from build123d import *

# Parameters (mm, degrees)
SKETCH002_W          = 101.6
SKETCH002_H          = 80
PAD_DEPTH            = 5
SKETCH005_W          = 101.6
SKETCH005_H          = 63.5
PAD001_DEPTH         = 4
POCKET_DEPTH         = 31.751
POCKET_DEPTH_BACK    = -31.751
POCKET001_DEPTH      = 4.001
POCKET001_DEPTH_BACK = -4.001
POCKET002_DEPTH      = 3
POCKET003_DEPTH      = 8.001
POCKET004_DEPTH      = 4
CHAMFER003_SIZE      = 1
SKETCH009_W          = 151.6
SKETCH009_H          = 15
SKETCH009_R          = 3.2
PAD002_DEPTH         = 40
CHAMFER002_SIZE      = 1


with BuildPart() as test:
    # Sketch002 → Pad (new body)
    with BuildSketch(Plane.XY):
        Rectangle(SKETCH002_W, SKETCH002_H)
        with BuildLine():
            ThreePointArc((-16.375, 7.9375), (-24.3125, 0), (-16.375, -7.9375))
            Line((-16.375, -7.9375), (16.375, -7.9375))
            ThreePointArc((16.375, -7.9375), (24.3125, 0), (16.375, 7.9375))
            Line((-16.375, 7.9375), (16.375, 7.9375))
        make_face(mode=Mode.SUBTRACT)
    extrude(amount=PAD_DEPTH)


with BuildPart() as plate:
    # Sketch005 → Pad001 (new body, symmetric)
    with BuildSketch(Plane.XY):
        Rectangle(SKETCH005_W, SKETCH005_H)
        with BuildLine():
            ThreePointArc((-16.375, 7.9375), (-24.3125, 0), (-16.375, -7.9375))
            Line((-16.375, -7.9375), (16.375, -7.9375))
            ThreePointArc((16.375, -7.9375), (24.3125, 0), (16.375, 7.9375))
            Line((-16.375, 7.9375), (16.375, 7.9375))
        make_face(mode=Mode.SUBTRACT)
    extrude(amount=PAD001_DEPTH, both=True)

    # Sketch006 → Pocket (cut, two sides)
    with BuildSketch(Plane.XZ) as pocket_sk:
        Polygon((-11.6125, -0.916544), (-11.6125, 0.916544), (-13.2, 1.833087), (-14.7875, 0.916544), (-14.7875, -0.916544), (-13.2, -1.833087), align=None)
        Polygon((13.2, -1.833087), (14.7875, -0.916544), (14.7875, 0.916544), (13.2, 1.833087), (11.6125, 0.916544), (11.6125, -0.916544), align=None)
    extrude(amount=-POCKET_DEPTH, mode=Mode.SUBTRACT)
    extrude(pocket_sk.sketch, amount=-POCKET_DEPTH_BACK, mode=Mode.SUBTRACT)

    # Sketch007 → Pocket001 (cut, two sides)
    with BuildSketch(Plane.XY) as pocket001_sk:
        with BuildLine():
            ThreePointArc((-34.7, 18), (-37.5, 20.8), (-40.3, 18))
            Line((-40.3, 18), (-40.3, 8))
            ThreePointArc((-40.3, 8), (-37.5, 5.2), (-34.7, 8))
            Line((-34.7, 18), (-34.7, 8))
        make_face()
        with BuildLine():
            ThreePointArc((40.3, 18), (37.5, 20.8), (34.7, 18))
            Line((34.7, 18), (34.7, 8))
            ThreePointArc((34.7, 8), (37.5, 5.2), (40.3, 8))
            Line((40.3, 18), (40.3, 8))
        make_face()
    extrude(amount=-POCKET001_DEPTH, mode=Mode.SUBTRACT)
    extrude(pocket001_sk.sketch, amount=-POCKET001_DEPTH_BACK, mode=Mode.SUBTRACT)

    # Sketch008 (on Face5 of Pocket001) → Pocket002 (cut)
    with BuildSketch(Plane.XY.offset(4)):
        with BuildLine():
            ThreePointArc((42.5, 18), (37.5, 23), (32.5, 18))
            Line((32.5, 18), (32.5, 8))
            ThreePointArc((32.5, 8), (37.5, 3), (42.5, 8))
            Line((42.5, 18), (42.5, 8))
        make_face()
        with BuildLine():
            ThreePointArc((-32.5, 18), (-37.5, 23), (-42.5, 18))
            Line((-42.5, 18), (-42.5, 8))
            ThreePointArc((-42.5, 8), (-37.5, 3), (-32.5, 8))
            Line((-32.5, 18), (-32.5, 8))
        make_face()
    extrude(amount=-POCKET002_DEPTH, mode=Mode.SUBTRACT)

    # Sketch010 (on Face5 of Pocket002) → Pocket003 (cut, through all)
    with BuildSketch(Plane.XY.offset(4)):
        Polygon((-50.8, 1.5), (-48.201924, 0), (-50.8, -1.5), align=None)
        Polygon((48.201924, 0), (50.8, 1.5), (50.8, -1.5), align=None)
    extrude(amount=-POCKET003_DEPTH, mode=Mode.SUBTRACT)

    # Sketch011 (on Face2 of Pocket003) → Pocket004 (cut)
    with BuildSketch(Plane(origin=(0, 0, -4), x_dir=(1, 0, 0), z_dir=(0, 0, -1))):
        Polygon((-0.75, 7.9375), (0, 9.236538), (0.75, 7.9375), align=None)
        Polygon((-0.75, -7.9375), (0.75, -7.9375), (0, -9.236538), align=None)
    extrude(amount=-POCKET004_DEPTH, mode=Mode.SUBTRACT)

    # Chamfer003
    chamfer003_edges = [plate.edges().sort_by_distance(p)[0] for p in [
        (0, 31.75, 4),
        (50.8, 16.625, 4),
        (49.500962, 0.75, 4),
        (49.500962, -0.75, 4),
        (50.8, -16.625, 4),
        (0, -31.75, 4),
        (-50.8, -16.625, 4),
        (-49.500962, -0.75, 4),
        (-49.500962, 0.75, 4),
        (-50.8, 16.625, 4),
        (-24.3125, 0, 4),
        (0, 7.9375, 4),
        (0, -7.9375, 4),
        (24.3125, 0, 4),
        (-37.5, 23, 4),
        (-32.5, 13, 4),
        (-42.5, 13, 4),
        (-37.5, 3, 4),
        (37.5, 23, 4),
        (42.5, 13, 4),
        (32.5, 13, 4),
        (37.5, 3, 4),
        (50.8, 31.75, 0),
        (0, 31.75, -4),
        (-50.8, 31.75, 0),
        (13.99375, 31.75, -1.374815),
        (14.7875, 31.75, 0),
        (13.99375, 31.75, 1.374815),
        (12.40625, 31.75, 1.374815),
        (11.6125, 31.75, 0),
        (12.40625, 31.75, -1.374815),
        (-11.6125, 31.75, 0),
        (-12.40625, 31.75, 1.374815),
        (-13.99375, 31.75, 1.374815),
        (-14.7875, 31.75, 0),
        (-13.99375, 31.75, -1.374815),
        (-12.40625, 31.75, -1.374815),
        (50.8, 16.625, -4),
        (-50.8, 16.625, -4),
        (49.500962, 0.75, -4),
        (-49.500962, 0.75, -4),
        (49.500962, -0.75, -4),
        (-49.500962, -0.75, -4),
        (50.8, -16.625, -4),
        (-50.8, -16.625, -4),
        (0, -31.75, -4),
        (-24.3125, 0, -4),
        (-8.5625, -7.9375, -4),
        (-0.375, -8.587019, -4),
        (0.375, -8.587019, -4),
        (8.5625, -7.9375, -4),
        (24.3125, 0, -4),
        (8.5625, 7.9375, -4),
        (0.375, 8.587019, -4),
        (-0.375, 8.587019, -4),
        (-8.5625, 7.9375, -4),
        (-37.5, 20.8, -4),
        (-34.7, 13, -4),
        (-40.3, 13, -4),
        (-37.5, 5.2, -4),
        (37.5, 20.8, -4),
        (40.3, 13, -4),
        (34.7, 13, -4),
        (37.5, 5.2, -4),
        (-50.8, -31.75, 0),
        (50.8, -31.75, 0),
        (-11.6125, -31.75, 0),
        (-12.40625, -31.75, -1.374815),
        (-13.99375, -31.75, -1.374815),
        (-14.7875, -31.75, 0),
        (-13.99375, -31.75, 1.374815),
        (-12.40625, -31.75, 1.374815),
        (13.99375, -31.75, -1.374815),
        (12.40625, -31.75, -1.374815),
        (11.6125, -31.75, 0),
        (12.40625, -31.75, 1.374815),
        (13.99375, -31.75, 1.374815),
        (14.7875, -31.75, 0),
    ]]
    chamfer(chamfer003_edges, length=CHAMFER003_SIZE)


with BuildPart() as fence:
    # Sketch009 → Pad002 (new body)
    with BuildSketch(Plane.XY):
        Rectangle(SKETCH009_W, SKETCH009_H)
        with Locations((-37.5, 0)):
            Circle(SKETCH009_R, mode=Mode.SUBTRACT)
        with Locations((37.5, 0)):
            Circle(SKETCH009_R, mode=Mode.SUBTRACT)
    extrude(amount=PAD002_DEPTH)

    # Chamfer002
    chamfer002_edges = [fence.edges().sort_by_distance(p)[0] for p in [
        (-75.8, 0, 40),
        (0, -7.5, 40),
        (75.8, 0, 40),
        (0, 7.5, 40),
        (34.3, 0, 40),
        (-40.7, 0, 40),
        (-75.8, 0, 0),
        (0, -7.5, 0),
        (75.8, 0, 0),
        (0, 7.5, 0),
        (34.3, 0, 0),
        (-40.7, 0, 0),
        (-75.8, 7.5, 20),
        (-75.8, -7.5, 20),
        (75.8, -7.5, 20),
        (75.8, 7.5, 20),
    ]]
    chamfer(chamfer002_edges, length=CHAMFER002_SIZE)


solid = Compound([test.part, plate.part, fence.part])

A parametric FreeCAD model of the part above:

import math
import FreeCAD as App
import Part
import Sketcher
Q = App.Units.Quantity


def edges_at(feature, points):
    """Names of the edges that pass closest to the given points."""
    edges = feature.Shape.Edges
    near = lambda p: min(range(len(edges)), key=lambda i: edges[i].distToShape(Part.Vertex(*p))[0])
    return sorted({f"Edge{near(p) + 1}" for p in points})

doc = App.newDocument("Part")
body = doc.addObject("PartDesign::Body", "Body")

# Sketch on XY plane
sketch1 = body.newObject("Sketcher::SketchObject", "Sketch")
sketch1.AttachmentSupport = (doc.getObject("XY_Plane"), [""])
sketch1.MapMode = "FlatFace"
sketch1.addGeometry(Part.LineSegment(App.Vector(-50.8, 40, 0), App.Vector(-50.8, -40, 0)), False)
sketch1.addGeometry(Part.LineSegment(App.Vector(-50.8, -40, 0), App.Vector(50.8, -40, 0)), False)
sketch1.addGeometry(Part.LineSegment(App.Vector(50.8, -40, 0), App.Vector(50.8, 40, 0)), False)
sketch1.addGeometry(Part.LineSegment(App.Vector(50.8, 40, 0), App.Vector(-50.8, 40, 0)), False)
sketch1.addGeometry(Part.ArcOfCircle(Part.Circle(App.Vector(-16.375, 0, 0), App.Vector(0, 0, 1), 7.9375), math.radians(90), math.radians(270)), False)
sketch1.addGeometry(Part.LineSegment(App.Vector(-16.375, 7.9375, 0), App.Vector(16.375, 7.9375, 0)), False)
sketch1.addGeometry(Part.ArcOfCircle(Part.Circle(App.Vector(16.375, 0, 0), App.Vector(0, 0, 1), 7.9375), math.radians(-90), math.radians(90)), False)
sketch1.addGeometry(Part.LineSegment(App.Vector(16.375, -7.9375, 0), App.Vector(-16.375, -7.9375, 0)), False)
sketch1.addConstraint(Sketcher.Constraint("Coincident", 0, 2, 1, 1))
sketch1.addConstraint(Sketcher.Constraint("Coincident", 1, 2, 2, 1))
sketch1.addConstraint(Sketcher.Constraint("Coincident", 2, 2, 3, 1))
sketch1.addConstraint(Sketcher.Constraint("Coincident", 3, 2, 0, 1))
sketch1.addConstraint(Sketcher.Constraint("Tangent", 4, 1, 5, 1))
sketch1.addConstraint(Sketcher.Constraint("Tangent", 5, 2, 6, 2))
sketch1.addConstraint(Sketcher.Constraint("Tangent", 6, 1, 7, 1))
sketch1.addConstraint(Sketcher.Constraint("Tangent", 7, 2, 4, 2))
sketch1.addConstraint(Sketcher.Constraint("Vertical", 0))
sketch1.addConstraint(Sketcher.Constraint("Horizontal", 1))
sketch1.addConstraint(Sketcher.Constraint("Vertical", 2))
sketch1.addConstraint(Sketcher.Constraint("Horizontal", 3))
sketch1.addConstraint(Sketcher.Constraint("Horizontal", 5))
sketch1.addConstraint(Sketcher.Constraint("Horizontal", 7))
sketch1.addConstraint(Sketcher.Constraint("Symmetric", 4, 3, 6, 3, -1, 1))
sketch1.addConstraint(Sketcher.Constraint("Symmetric", 0, 2, 2, 2, -1, 1))
sketch1.addConstraint(Sketcher.Constraint("DistanceY", 0, 2, 0, 1, Q("80 mm")))
sketch1.addConstraint(Sketcher.Constraint("DistanceX", 1, 1, 1, 2, Q("101.6 mm")))
sketch1.addConstraint(Sketcher.Constraint("DistanceX", 5, 1, 5, 2, Q("32.75 mm")))
sketch1.addConstraint(Sketcher.Constraint("Radius", 4, Q("7.9375 mm")))
pad1 = body.newObject("PartDesign::Pad", "Pad")
pad1.Profile = sketch1
pad1.Length = 5
body2 = doc.addObject("PartDesign::Body", "Body001")

# Sketch on XY plane
sketch2 = body2.newObject("Sketcher::SketchObject", "Sketch001")
sketch2.AttachmentSupport = (doc.getObject("XY_Plane001"), [""])
sketch2.MapMode = "FlatFace"
sketch2.addGeometry(Part.LineSegment(App.Vector(-50.8, 31.75, 0), App.Vector(-50.8, -31.75, 0)), False)
sketch2.addGeometry(Part.LineSegment(App.Vector(-50.8, -31.75, 0), App.Vector(50.8, -31.75, 0)), False)
sketch2.addGeometry(Part.LineSegment(App.Vector(50.8, -31.75, 0), App.Vector(50.8, 31.75, 0)), False)
sketch2.addGeometry(Part.LineSegment(App.Vector(50.8, 31.75, 0), App.Vector(-50.8, 31.75, 0)), False)
sketch2.addGeometry(Part.ArcOfCircle(Part.Circle(App.Vector(-16.375, 0, 0), App.Vector(0, 0, 1), 7.9375), math.radians(90), math.radians(270)), False)
sketch2.addGeometry(Part.LineSegment(App.Vector(-16.375, 7.9375, 0), App.Vector(16.375, 7.9375, 0)), False)
sketch2.addGeometry(Part.ArcOfCircle(Part.Circle(App.Vector(16.375, 0, 0), App.Vector(0, 0, 1), 7.9375), math.radians(-90), math.radians(90)), False)
sketch2.addGeometry(Part.LineSegment(App.Vector(16.375, -7.9375, 0), App.Vector(-16.375, -7.9375, 0)), False)
sketch2.addConstraint(Sketcher.Constraint("Coincident", 0, 2, 1, 1))
sketch2.addConstraint(Sketcher.Constraint("Coincident", 1, 2, 2, 1))
sketch2.addConstraint(Sketcher.Constraint("Coincident", 2, 2, 3, 1))
sketch2.addConstraint(Sketcher.Constraint("Coincident", 3, 2, 0, 1))
sketch2.addConstraint(Sketcher.Constraint("Tangent", 4, 1, 5, 1))
sketch2.addConstraint(Sketcher.Constraint("Tangent", 5, 2, 6, 2))
sketch2.addConstraint(Sketcher.Constraint("Tangent", 6, 1, 7, 1))
sketch2.addConstraint(Sketcher.Constraint("Tangent", 7, 2, 4, 2))
sketch2.addConstraint(Sketcher.Constraint("Vertical", 0))
sketch2.addConstraint(Sketcher.Constraint("Horizontal", 1))
sketch2.addConstraint(Sketcher.Constraint("Vertical", 2))
sketch2.addConstraint(Sketcher.Constraint("Horizontal", 3))
sketch2.addConstraint(Sketcher.Constraint("Horizontal", 5))
sketch2.addConstraint(Sketcher.Constraint("Horizontal", 7))
sketch2.addConstraint(Sketcher.Constraint("Symmetric", 4, 3, 6, 3, -1, 1))
sketch2.addConstraint(Sketcher.Constraint("Symmetric", 0, 2, 2, 2, -1, 1))
sketch2.addConstraint(Sketcher.Constraint("DistanceX", 1, 1, 1, 2, Q("101.6 mm")))
sketch2.addConstraint(Sketcher.Constraint("DistanceY", 0, 2, 0, 1, Q("63.5 mm")))
sketch2.addConstraint(Sketcher.Constraint("DistanceX", 5, 1, 5, 2, Q("32.75 mm")))
sketch2.addConstraint(Sketcher.Constraint("Radius", 4, Q("7.9375 mm")))
pad2 = body2.newObject("PartDesign::Pad", "Pad001")
pad2.Profile = sketch2
pad2.Length = 8
pad2.Midplane = True

# Sketch on XZ plane
sketch3 = body2.newObject("Sketcher::SketchObject", "Sketch002")
sketch3.AttachmentSupport = (doc.getObject("XZ_Plane001"), [""])
sketch3.MapMode = "FlatFace"
sketch3.addGeometry(Part.LineSegment(App.Vector(-11.6125, -0.916544, 0), App.Vector(-11.6125, 0.916544, 0)), False)
sketch3.addGeometry(Part.LineSegment(App.Vector(-11.6125, 0.916544, 0), App.Vector(-13.2, 1.833087, 0)), False)
sketch3.addGeometry(Part.LineSegment(App.Vector(-13.2, 1.833087, 0), App.Vector(-14.7875, 0.916544, 0)), False)
sketch3.addGeometry(Part.LineSegment(App.Vector(-14.7875, 0.916544, 0), App.Vector(-14.7875, -0.916544, 0)), False)
sketch3.addGeometry(Part.LineSegment(App.Vector(-14.7875, -0.916544, 0), App.Vector(-13.2, -1.833087, 0)), False)
sketch3.addGeometry(Part.LineSegment(App.Vector(-13.2, -1.833087, 0), App.Vector(-11.6125, -0.916544, 0)), False)
sketch3.addGeometry(Part.LineSegment(App.Vector(13.2, -1.833087, 0), App.Vector(14.7875, -0.916544, 0)), False)
sketch3.addGeometry(Part.LineSegment(App.Vector(14.7875, -0.916544, 0), App.Vector(14.7875, 0.916544, 0)), False)
sketch3.addGeometry(Part.LineSegment(App.Vector(14.7875, 0.916544, 0), App.Vector(13.2, 1.833087, 0)), False)
sketch3.addGeometry(Part.LineSegment(App.Vector(13.2, 1.833087, 0), App.Vector(11.6125, 0.916544, 0)), False)
sketch3.addGeometry(Part.LineSegment(App.Vector(11.6125, 0.916544, 0), App.Vector(11.6125, -0.916544, 0)), False)
sketch3.addGeometry(Part.LineSegment(App.Vector(11.6125, -0.916544, 0), App.Vector(13.2, -1.833087, 0)), False)
sketch3.addConstraint(Sketcher.Constraint("Coincident", 0, 2, 1, 1))
sketch3.addConstraint(Sketcher.Constraint("Coincident", 1, 2, 2, 1))
sketch3.addConstraint(Sketcher.Constraint("Coincident", 2, 2, 3, 1))
sketch3.addConstraint(Sketcher.Constraint("Coincident", 3, 2, 4, 1))
sketch3.addConstraint(Sketcher.Constraint("Coincident", 4, 2, 5, 1))
sketch3.addConstraint(Sketcher.Constraint("Coincident", 5, 2, 0, 1))
sketch3.addConstraint(Sketcher.Constraint("Coincident", 6, 2, 7, 1))
sketch3.addConstraint(Sketcher.Constraint("Coincident", 7, 2, 8, 1))
sketch3.addConstraint(Sketcher.Constraint("Coincident", 8, 2, 9, 1))
sketch3.addConstraint(Sketcher.Constraint("Coincident", 9, 2, 10, 1))
sketch3.addConstraint(Sketcher.Constraint("Coincident", 10, 2, 11, 1))
sketch3.addConstraint(Sketcher.Constraint("Coincident", 11, 2, 6, 1))
sketch3.addConstraint(Sketcher.Constraint("Vertical", 0))
sketch3.addConstraint(Sketcher.Constraint("Vertical", 3))
sketch3.addConstraint(Sketcher.Constraint("Vertical", 7))
sketch3.addConstraint(Sketcher.Constraint("Vertical", 10))
sketch3.addConstraint(Sketcher.Constraint("Symmetric", 2, 2, 6, 2, -1, 1))
sketch3.addConstraint(Sketcher.Constraint("Symmetric", 4, 2, 8, 2, -1, 1))
sketch3.addConstraint(Sketcher.Constraint("Symmetric", 5, 2, 9, 2, -1, 1))
sketch3.addConstraint(Sketcher.Constraint("Symmetric", 1, 2, 11, 2, -1, 1))
sketch3.addConstraint(Sketcher.Constraint("Symmetric", 1, 2, 8, 2, -2))
sketch3.addConstraint(Sketcher.Constraint("Parallel", 1, 4))
sketch3.addConstraint(Sketcher.Constraint("Parallel", 2, 5))
sketch3.addConstraint(Sketcher.Constraint("Parallel", 4, 8))
sketch3.addConstraint(Sketcher.Constraint("Parallel", 8, 11))
sketch3.addConstraint(Sketcher.Constraint("Horizontal", 0, 2, 2, 2))
sketch3.addConstraint(Sketcher.Constraint("Horizontal", 3, 2, 5, 2))
sketch3.addConstraint(Sketcher.Constraint("Angle", 1, Q("150.000015 deg")))
sketch3.addConstraint(Sketcher.Constraint("DistanceX", 1, 2, -1, 1, Q("13.2 mm")))
sketch3.addConstraint(Sketcher.Constraint("DistanceX", 2, 2, 0, 2, Q("3.175 mm")))
sketch3.addConstraint(Sketcher.Constraint("DistanceY", 0, 1, 0, 2, Q("1.833088 mm")))
pocket1 = body2.newObject("PartDesign::Pocket", "Pocket")
pocket1.Profile = sketch3
pocket1.Type = "ThroughAll"
pocket1.Midplane = True

# Sketch on XY plane
sketch4 = body2.newObject("Sketcher::SketchObject", "Sketch003")
sketch4.AttachmentSupport = (doc.getObject("XY_Plane001"), [""])
sketch4.MapMode = "FlatFace"
sketch4.addGeometry(Part.ArcOfCircle(Part.Circle(App.Vector(-37.5, 18, 0), App.Vector(0, 0, 1), 2.8), math.radians(0), math.radians(180)), False)
sketch4.addGeometry(Part.LineSegment(App.Vector(-40.3, 18, 0), App.Vector(-40.3, 8, 0)), False)
sketch4.addGeometry(Part.ArcOfCircle(Part.Circle(App.Vector(-37.5, 8, 0), App.Vector(0, 0, 1), 2.8), math.radians(180), math.radians(360)), False)
sketch4.addGeometry(Part.LineSegment(App.Vector(-34.7, 8, 0), App.Vector(-34.7, 18, 0)), False)
sketch4.addGeometry(Part.ArcOfCircle(Part.Circle(App.Vector(37.5, 18, 0), App.Vector(0, 0, 1), 2.8), math.radians(0), math.radians(180)), False)
sketch4.addGeometry(Part.LineSegment(App.Vector(34.7, 18, 0), App.Vector(34.7, 8, 0)), False)
sketch4.addGeometry(Part.ArcOfCircle(Part.Circle(App.Vector(37.5, 8, 0), App.Vector(0, 0, 1), 2.8), math.radians(180), math.radians(360)), False)
sketch4.addGeometry(Part.LineSegment(App.Vector(40.3, 8, 0), App.Vector(40.3, 18, 0)), False)
sketch4.addConstraint(Sketcher.Constraint("Tangent", 0, 2, 1, 1))
sketch4.addConstraint(Sketcher.Constraint("Tangent", 1, 2, 2, 1))
sketch4.addConstraint(Sketcher.Constraint("Tangent", 2, 2, 3, 1))
sketch4.addConstraint(Sketcher.Constraint("Tangent", 3, 2, 0, 1))
sketch4.addConstraint(Sketcher.Constraint("Tangent", 4, 2, 5, 1))
sketch4.addConstraint(Sketcher.Constraint("Tangent", 5, 2, 6, 1))
sketch4.addConstraint(Sketcher.Constraint("Tangent", 6, 2, 7, 1))
sketch4.addConstraint(Sketcher.Constraint("Tangent", 7, 2, 4, 1))
sketch4.addConstraint(Sketcher.Constraint("Vertical", 1))
sketch4.addConstraint(Sketcher.Constraint("Vertical", 3))
sketch4.addConstraint(Sketcher.Constraint("Vertical", 5))
sketch4.addConstraint(Sketcher.Constraint("Vertical", 7))
sketch4.addConstraint(Sketcher.Constraint("Equal", 2, 4))
sketch4.addConstraint(Sketcher.Constraint("Symmetric", 0, 3, 4, 3, -2))
sketch4.addConstraint(Sketcher.Constraint("Horizontal", 2, 3, 6, 3))
sketch4.addConstraint(Sketcher.Constraint("Radius", 0, Q("2.8 mm")))
sketch4.addConstraint(Sketcher.Constraint("DistanceY", 1, 2, 1, 1, Q("10 mm")))
sketch4.addConstraint(Sketcher.Constraint("DistanceY", -1, 1, 0, 3, Q("18 mm")))
sketch4.addConstraint(Sketcher.Constraint("DistanceX", 0, 3, 4, 3, Q("75 mm")))
pocket2 = body2.newObject("PartDesign::Pocket", "Pocket001")
pocket2.Profile = sketch4
pocket2.Type = "ThroughAll"
pocket2.Midplane = True

# Sketch on XY plane
sketch5 = body2.newObject("Sketcher::SketchObject", "Sketch004")
sketch5.AttachmentSupport = (doc.getObject("XY_Plane001"), [""])
sketch5.MapMode = "FlatFace"
sketch5.AttachmentOffset = App.Placement(App.Vector(0, 0, 4), App.Rotation())
sketch5.addGeometry(Part.ArcOfCircle(Part.Circle(App.Vector(37.5, 18, 0), App.Vector(0, 0, 1), 5), math.radians(0), math.radians(180)), False)
sketch5.addGeometry(Part.LineSegment(App.Vector(32.5, 18, 0), App.Vector(32.5, 8, 0)), False)
sketch5.addGeometry(Part.ArcOfCircle(Part.Circle(App.Vector(37.5, 8, 0), App.Vector(0, 0, 1), 5), math.radians(180), math.radians(360)), False)
sketch5.addGeometry(Part.LineSegment(App.Vector(42.5, 8, 0), App.Vector(42.5, 18, 0)), False)
sketch5.addGeometry(Part.ArcOfCircle(Part.Circle(App.Vector(-37.5, 18, 0), App.Vector(0, 0, 1), 5), math.radians(0), math.radians(180)), False)
sketch5.addGeometry(Part.LineSegment(App.Vector(-42.5, 18, 0), App.Vector(-42.5, 8, 0)), False)
sketch5.addGeometry(Part.ArcOfCircle(Part.Circle(App.Vector(-37.5, 8, 0), App.Vector(0, 0, 1), 5), math.radians(180), math.radians(360)), False)
sketch5.addGeometry(Part.LineSegment(App.Vector(-32.5, 8, 0), App.Vector(-32.5, 18, 0)), False)
sketch5.addConstraint(Sketcher.Constraint("Tangent", 0, 2, 1, 1))
sketch5.addConstraint(Sketcher.Constraint("Tangent", 1, 2, 2, 1))
sketch5.addConstraint(Sketcher.Constraint("Tangent", 2, 2, 3, 1))
sketch5.addConstraint(Sketcher.Constraint("Tangent", 3, 2, 0, 1))
sketch5.addConstraint(Sketcher.Constraint("Tangent", 4, 2, 5, 1))
sketch5.addConstraint(Sketcher.Constraint("Tangent", 5, 2, 6, 1))
sketch5.addConstraint(Sketcher.Constraint("Tangent", 6, 2, 7, 1))
sketch5.addConstraint(Sketcher.Constraint("Tangent", 7, 2, 4, 1))
sketch5.addConstraint(Sketcher.Constraint("Vertical", 1))
sketch5.addConstraint(Sketcher.Constraint("Vertical", 3))
sketch5.addConstraint(Sketcher.Constraint("Vertical", 5))
sketch5.addConstraint(Sketcher.Constraint("Vertical", 7))
sketch5.addConstraint(Sketcher.Constraint("Equal", 2, 4))
sketch5.addConstraint(Sketcher.Constraint("Symmetric", 0, 3, 4, 3, -2))
sketch5.addConstraint(Sketcher.Constraint("Horizontal", 2, 3, 6, 3))
sketch5.addConstraint(Sketcher.Constraint("Radius", 0, Q("5 mm")))
sketch5.addConstraint(Sketcher.Constraint("DistanceY", 1, 2, 1, 1, Q("10 mm")))
sketch5.addConstraint(Sketcher.Constraint("DistanceY", -1, 1, 0, 3, Q("18 mm")))
sketch5.addConstraint(Sketcher.Constraint("DistanceX", 4, 3, 0, 3, Q("75 mm")))
pocket3 = body2.newObject("PartDesign::Pocket", "Pocket002")
pocket3.Profile = sketch5
pocket3.Length = 3

# Sketch on XY plane
sketch6 = body2.newObject("Sketcher::SketchObject", "Sketch005")
sketch6.AttachmentSupport = (doc.getObject("XY_Plane001"), [""])
sketch6.MapMode = "FlatFace"
sketch6.AttachmentOffset = App.Placement(App.Vector(0, 0, 4), App.Rotation())
sketch6.addGeometry(Part.LineSegment(App.Vector(-48.201924, 0, 0), App.Vector(-50.8, 1.5, 0)), False)
sketch6.addGeometry(Part.LineSegment(App.Vector(-50.8, 1.5, 0), App.Vector(-50.8, -1.5, 0)), False)
sketch6.addGeometry(Part.LineSegment(App.Vector(-50.8, -1.5, 0), App.Vector(-48.201924, 0, 0)), False)
sketch6.addGeometry(Part.LineSegment(App.Vector(50.8, 1.5, 0), App.Vector(48.201924, 0, 0)), False)
sketch6.addGeometry(Part.LineSegment(App.Vector(48.201924, 0, 0), App.Vector(50.8, -1.5, 0)), False)
sketch6.addGeometry(Part.LineSegment(App.Vector(50.8, -1.5, 0), App.Vector(50.8, 1.5, 0)), False)
sketch6.addConstraint(Sketcher.Constraint("Coincident", 0, 2, 1, 1))
sketch6.addConstraint(Sketcher.Constraint("Coincident", 1, 2, 2, 1))
sketch6.addConstraint(Sketcher.Constraint("Coincident", 2, 2, 0, 1))
sketch6.addConstraint(Sketcher.Constraint("Coincident", 3, 2, 4, 1))
sketch6.addConstraint(Sketcher.Constraint("Coincident", 4, 2, 5, 1))
sketch6.addConstraint(Sketcher.Constraint("Coincident", 5, 2, 3, 1))
sketch6.addConstraint(Sketcher.Constraint("Vertical", 1))
sketch6.addConstraint(Sketcher.Constraint("Vertical", 5))
sketch6.addConstraint(Sketcher.Constraint("Symmetric", 2, 2, 3, 2, -1, 1))
sketch6.addConstraint(Sketcher.Constraint("Symmetric", 0, 2, 4, 2, -1, 1))
sketch6.addConstraint(Sketcher.Constraint("PointOnObject", 2, 2, -1))
sketch6.addConstraint(Sketcher.Constraint("Parallel", 2, 3))
sketch6.addConstraint(Sketcher.Constraint("Horizontal", 1, 2, 4, 2))
sketch6.addConstraint(Sketcher.Constraint("DistanceY", 1, 2, 1, 1, Q("3 mm")))
sketch6.addConstraint(Sketcher.Constraint("Angle", 0, Q("149.999998 deg")))
sketch6.addConstraint(Sketcher.Constraint("DistanceX", 0, 2, -1, 1, Q("50.8 mm")))
pocket4 = body2.newObject("PartDesign::Pocket", "Pocket003")
pocket4.Profile = sketch6
pocket4.Type = "ThroughAll"

# Sketch on XY plane
sketch7 = body2.newObject("Sketcher::SketchObject", "Sketch006")
sketch7.AttachmentSupport = (doc.getObject("XY_Plane001"), [""])
sketch7.MapMode = "FlatFace"
sketch7.AttachmentOffset = App.Placement(App.Vector(0, 0, -4), App.Rotation())
sketch7.addGeometry(Part.LineSegment(App.Vector(0, -9.236538, 0), App.Vector(-0.75, -7.9375, 0)), False)
sketch7.addGeometry(Part.LineSegment(App.Vector(-0.75, -7.9375, 0), App.Vector(0.75, -7.9375, 0)), False)
sketch7.addGeometry(Part.LineSegment(App.Vector(0.75, -7.9375, 0), App.Vector(0, -9.236538, 0)), False)
sketch7.addGeometry(Part.LineSegment(App.Vector(0.75, 7.9375, 0), App.Vector(-0.75, 7.9375, 0)), False)
sketch7.addGeometry(Part.LineSegment(App.Vector(-0.75, 7.9375, 0), App.Vector(0, 9.236538, 0)), False)
sketch7.addGeometry(Part.LineSegment(App.Vector(0, 9.236538, 0), App.Vector(0.75, 7.9375, 0)), False)
sketch7.addConstraint(Sketcher.Constraint("Coincident", 0, 2, 1, 1))
sketch7.addConstraint(Sketcher.Constraint("Coincident", 1, 2, 2, 1))
sketch7.addConstraint(Sketcher.Constraint("Coincident", 2, 2, 0, 1))
sketch7.addConstraint(Sketcher.Constraint("Coincident", 3, 2, 4, 1))
sketch7.addConstraint(Sketcher.Constraint("Coincident", 4, 2, 5, 1))
sketch7.addConstraint(Sketcher.Constraint("Coincident", 5, 2, 3, 1))
sketch7.addConstraint(Sketcher.Constraint("Horizontal", 1))
sketch7.addConstraint(Sketcher.Constraint("Horizontal", 3))
sketch7.addConstraint(Sketcher.Constraint("Symmetric", 1, 2, 3, 2, -1, 1))
sketch7.addConstraint(Sketcher.Constraint("Symmetric", 2, 2, 4, 2, -1, 1))
sketch7.addConstraint(Sketcher.Constraint("PointOnObject", 2, 2, -2))
sketch7.addConstraint(Sketcher.Constraint("Parallel", 0, 5))
sketch7.addConstraint(Sketcher.Constraint("Vertical", 0, 2, 3, 2))
sketch7.addConstraint(Sketcher.Constraint("Angle", 0, Q("120.000002 deg")))
sketch7.addConstraint(Sketcher.Constraint("DistanceX", 1, 1, 1, 2, Q("1.5 mm")))
sketch7.addConstraint(Sketcher.Constraint("DistanceY", 0, 2, 3, 2, Q("15.875 mm")))
pocket5 = body2.newObject("PartDesign::Pocket", "Pocket004")
pocket5.Profile = sketch7
pocket5.Length = 4
pocket5.Reversed = True
doc.recompute()

chamfer = body2.newObject("PartDesign::Chamfer", "Chamfer")
chamfer.Base = (pocket5, edges_at(pocket5, [
    (0, 31.75, 4),
    (50.8, 16.625, 4),
    (49.501, 0.75, 4),
    (49.501, -0.75, 4),
    (50.8, -16.625, 4),
    (0, -31.75, 4),
    (-50.8, -16.625, 4),
    (-49.501, -0.75, 4),
    (-49.501, 0.75, 4),
    (-50.8, 16.625, 4),
    (-24.312, 0, 4),
    (0, 7.938, 4),
    (0, -7.938, 4),
    (24.312, 0, 4),
    (-37.5, 23, 4),
    (-32.5, 13, 4),
    (-42.5, 13, 4),
    (-37.5, 3, 4),
    (37.5, 23, 4),
    (42.5, 13, 4),
    (32.5, 13, 4),
    (37.5, 3, 4),
    (50.8, 31.75, 0),
    (0, 31.75, -4),
    (-50.8, 31.75, 0),
    (13.994, 31.75, -1.375),
    (14.787, 31.75, 0),
    (13.994, 31.75, 1.375),
    (12.406, 31.75, 1.375),
    (11.613, 31.75, 0),
    (12.406, 31.75, -1.375),
    (-11.613, 31.75, 0),
    (-12.406, 31.75, 1.375),
    (-13.994, 31.75, 1.375),
    (-14.787, 31.75, 0),
    (-13.994, 31.75, -1.375),
    (-12.406, 31.75, -1.375),
    (50.8, 16.625, -4),
    (-50.8, 16.625, -4),
    (49.501, 0.75, -4),
    (-49.501, 0.75, -4),
    (49.501, -0.75, -4),
    (-49.501, -0.75, -4),
    (50.8, -16.625, -4),
    (-50.8, -16.625, -4),
    (0, -31.75, -4),
    (-24.312, 0, -4),
    (-8.562, -7.938, -4),
    (-0.375, -8.587, -4),
    (0.375, -8.587, -4),
    (8.562, -7.938, -4),
    (24.312, 0, -4),
    (8.562, 7.938, -4),
    (0.375, 8.587, -4),
    (-0.375, 8.587, -4),
    (-8.562, 7.938, -4),
    (-37.5, 20.8, -4),
    (-34.7, 13, -4),
    (-40.3, 13, -4),
    (-37.5, 5.2, -4),
    (37.5, 20.8, -4),
    (40.3, 13, -4),
    (34.7, 13, -4),
    (37.5, 5.2, -4),
    (-50.8, -31.75, 0),
    (50.8, -31.75, 0),
    (-11.613, -31.75, 0),
    (-12.406, -31.75, -1.375),
    (-13.994, -31.75, -1.375),
    (-14.787, -31.75, 0),
    (-13.994, -31.75, 1.375),
    (-12.406, -31.75, 1.375),
    (13.994, -31.75, -1.375),
    (12.406, -31.75, -1.375),
    (11.613, -31.75, 0),
    (12.406, -31.75, 1.375),
    (13.994, -31.75, 1.375),
    (14.787, -31.75, 0),
]))
chamfer.Size = 1
body3 = doc.addObject("PartDesign::Body", "Body002")

# Sketch on XY plane
sketch8 = body3.newObject("Sketcher::SketchObject", "Sketch007")
sketch8.AttachmentSupport = (doc.getObject("XY_Plane002"), [""])
sketch8.MapMode = "FlatFace"
sketch8.addGeometry(Part.LineSegment(App.Vector(-75.8, 7.5, 0), App.Vector(-75.8, -7.5, 0)), False)
sketch8.addGeometry(Part.LineSegment(App.Vector(-75.8, -7.5, 0), App.Vector(75.8, -7.5, 0)), False)
sketch8.addGeometry(Part.LineSegment(App.Vector(75.8, -7.5, 0), App.Vector(75.8, 7.5, 0)), False)
sketch8.addGeometry(Part.LineSegment(App.Vector(75.8, 7.5, 0), App.Vector(-75.8, 7.5, 0)), False)
sketch8.addGeometry(Part.Circle(App.Vector(-37.5, 0, 0), App.Vector(0, 0, 1), 3.2), False)
sketch8.addGeometry(Part.Circle(App.Vector(37.5, 0, 0), App.Vector(0, 0, 1), 3.2), False)
sketch8.addConstraint(Sketcher.Constraint("Coincident", 0, 2, 1, 1))
sketch8.addConstraint(Sketcher.Constraint("Coincident", 1, 2, 2, 1))
sketch8.addConstraint(Sketcher.Constraint("Coincident", 2, 2, 3, 1))
sketch8.addConstraint(Sketcher.Constraint("Coincident", 3, 2, 0, 1))
sketch8.addConstraint(Sketcher.Constraint("Vertical", 0))
sketch8.addConstraint(Sketcher.Constraint("Horizontal", 1))
sketch8.addConstraint(Sketcher.Constraint("Vertical", 2))
sketch8.addConstraint(Sketcher.Constraint("Horizontal", 3))
sketch8.addConstraint(Sketcher.Constraint("Equal", 4, 5))
sketch8.addConstraint(Sketcher.Constraint("Symmetric", 4, 3, 5, 3, -1, 1))
sketch8.addConstraint(Sketcher.Constraint("Symmetric", 0, 2, 2, 2, -1, 1))
sketch8.addConstraint(Sketcher.Constraint("PointOnObject", 4, 3, -1))
sketch8.addConstraint(Sketcher.Constraint("Diameter", 4, Q("6.4 mm")))
sketch8.addConstraint(Sketcher.Constraint("DistanceY", 0, 2, 0, 1, Q("15 mm")))
sketch8.addConstraint(Sketcher.Constraint("DistanceX", 1, 1, 1, 2, Q("151.6 mm")))
sketch8.addConstraint(Sketcher.Constraint("DistanceX", 4, 3, 5, 3, Q("75 mm")))
pad3 = body3.newObject("PartDesign::Pad", "Pad002")
pad3.Profile = sketch8
pad3.Length = 40
doc.recompute()

chamfer2 = body3.newObject("PartDesign::Chamfer", "Chamfer001")
chamfer2.Base = (pad3, ["Edge1"])
chamfer2.UseAllEdges = True
chamfer2.Size = 1

doc.recompute()
